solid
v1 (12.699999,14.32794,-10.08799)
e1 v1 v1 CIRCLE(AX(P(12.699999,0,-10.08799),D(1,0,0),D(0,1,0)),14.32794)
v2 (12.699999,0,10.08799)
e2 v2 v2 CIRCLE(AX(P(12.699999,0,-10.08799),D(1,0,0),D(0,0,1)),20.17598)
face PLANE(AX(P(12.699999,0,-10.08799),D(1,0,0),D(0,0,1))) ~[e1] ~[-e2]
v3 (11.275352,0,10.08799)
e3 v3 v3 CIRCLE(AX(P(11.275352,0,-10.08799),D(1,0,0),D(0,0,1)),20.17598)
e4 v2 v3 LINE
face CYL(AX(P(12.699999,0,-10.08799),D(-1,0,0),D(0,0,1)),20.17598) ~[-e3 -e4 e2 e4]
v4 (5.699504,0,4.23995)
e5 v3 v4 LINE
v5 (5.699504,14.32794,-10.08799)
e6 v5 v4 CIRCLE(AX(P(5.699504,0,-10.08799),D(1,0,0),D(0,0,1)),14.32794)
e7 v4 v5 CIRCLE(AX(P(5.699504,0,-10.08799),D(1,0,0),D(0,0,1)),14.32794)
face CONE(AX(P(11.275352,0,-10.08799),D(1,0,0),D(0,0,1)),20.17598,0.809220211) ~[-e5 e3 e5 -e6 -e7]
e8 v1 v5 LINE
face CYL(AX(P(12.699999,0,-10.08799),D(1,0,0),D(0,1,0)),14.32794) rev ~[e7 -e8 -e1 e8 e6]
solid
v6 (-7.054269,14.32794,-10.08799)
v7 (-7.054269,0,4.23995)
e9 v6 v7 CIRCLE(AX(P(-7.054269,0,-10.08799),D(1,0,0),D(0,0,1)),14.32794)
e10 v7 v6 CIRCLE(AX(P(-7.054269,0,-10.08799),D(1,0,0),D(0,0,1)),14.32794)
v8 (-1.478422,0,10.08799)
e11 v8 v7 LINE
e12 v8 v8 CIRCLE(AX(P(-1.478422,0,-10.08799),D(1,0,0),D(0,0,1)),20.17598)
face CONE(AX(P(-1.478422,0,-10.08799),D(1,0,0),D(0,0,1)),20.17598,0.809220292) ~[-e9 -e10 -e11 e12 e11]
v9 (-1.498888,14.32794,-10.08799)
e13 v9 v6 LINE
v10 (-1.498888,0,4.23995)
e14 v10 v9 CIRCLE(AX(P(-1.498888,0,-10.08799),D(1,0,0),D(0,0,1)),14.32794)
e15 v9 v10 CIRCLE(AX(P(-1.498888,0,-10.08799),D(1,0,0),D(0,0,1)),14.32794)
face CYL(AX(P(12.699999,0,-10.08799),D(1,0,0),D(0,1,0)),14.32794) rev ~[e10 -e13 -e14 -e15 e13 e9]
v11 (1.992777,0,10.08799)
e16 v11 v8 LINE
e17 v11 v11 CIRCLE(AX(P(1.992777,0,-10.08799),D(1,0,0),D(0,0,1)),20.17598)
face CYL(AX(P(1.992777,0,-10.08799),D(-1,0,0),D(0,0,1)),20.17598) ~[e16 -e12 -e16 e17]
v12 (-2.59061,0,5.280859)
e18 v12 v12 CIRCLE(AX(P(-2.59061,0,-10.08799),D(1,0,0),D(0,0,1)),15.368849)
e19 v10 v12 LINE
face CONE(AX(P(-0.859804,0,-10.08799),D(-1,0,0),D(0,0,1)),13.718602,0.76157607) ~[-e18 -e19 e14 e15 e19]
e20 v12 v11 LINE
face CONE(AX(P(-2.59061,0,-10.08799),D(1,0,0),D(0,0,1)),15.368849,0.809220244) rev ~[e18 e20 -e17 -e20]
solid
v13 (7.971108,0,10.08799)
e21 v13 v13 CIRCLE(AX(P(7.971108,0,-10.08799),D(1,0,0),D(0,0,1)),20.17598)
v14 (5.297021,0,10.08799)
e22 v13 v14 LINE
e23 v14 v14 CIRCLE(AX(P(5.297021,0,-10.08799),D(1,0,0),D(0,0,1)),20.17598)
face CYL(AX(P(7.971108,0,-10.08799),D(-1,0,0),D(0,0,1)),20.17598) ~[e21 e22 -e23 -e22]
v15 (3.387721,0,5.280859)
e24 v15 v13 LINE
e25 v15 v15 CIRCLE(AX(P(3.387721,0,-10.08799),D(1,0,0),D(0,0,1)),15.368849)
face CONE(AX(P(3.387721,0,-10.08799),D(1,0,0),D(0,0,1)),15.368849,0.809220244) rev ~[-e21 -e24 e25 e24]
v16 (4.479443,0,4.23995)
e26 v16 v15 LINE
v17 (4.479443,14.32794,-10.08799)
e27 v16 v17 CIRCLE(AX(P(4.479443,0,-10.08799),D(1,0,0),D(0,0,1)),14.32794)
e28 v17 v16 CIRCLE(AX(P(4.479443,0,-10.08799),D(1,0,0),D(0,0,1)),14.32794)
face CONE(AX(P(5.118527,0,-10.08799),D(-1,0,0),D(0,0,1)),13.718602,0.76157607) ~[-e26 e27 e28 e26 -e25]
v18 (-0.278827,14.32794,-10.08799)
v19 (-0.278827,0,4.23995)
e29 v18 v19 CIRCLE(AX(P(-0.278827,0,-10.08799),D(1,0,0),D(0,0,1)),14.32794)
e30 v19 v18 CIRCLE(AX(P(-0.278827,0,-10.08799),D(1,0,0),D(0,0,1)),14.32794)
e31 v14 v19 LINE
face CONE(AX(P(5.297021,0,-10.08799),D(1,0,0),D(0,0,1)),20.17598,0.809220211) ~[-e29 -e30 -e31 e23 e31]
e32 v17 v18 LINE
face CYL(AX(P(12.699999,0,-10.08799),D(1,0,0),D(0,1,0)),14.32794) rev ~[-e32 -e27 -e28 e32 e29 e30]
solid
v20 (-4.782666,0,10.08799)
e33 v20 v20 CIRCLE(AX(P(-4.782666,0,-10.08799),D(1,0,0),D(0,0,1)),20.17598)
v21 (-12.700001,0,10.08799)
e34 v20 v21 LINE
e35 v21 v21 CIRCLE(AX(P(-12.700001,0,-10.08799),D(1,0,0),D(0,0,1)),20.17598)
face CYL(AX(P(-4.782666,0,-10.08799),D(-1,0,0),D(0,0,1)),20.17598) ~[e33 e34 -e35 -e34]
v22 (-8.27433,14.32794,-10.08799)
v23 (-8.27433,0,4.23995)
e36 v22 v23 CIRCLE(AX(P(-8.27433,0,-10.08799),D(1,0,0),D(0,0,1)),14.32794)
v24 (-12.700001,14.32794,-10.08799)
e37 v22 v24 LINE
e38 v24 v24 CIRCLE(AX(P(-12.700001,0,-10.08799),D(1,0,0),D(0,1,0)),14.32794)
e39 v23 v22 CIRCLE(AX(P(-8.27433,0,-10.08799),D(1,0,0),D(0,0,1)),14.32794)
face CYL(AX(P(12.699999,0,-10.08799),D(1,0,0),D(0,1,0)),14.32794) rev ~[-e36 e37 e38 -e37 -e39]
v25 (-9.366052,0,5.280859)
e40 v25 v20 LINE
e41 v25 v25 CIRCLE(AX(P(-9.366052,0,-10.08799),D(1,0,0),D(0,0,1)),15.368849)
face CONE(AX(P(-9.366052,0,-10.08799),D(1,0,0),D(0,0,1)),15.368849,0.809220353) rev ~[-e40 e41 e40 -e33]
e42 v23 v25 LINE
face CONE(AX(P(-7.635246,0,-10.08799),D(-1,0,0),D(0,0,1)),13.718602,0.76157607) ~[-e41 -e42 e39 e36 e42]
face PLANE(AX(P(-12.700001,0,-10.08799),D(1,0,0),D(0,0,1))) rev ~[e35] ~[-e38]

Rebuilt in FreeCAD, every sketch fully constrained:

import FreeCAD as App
import Part
import Sketcher
from FreeCAD import Vector
Q = App.Units.Quantity

doc = App.newDocument("Part")
body = doc.addObject("PartDesign::Body", "Body")
body.AllowCompound = True

# Sketch on XZ plane
sketch1 = doc.addObject("Sketcher::SketchObject", "Sketch")
body.addObject(sketch1)
sketch1.AttachmentSupport = (doc.XZ_Plane, [""])
sketch1.MapMode = "FlatFace"
sketch1.addGeometry(Part.LineSegment(Vector(-4.782666, 10.08799, 0), Vector(-12.700001, 10.08799, 0)), False)
sketch1.addGeometry(Part.LineSegment(Vector(-12.700001, 10.08799, 0), Vector(-12.700001, -10.08799, 0)), False)
sketch1.addGeometry(Part.LineSegment(Vector(-12.700001, -10.08799, 0), Vector(-4.782666, -10.08799, 0)), False)
sketch1.addGeometry(Part.LineSegment(Vector(-4.782666, -10.08799, 0), Vector(-9.366052, -5.280859, 0)), False)
sketch1.addGeometry(Part.LineSegment(Vector(-9.366052, -5.280859, 0), Vector(-7.635246, -3.630612, 0)), False)
sketch1.addGeometry(Part.LineSegment(Vector(-7.635246, -3.630612, 0), Vector(-1.478422, -10.08799, 0)), False)
sketch1.addGeometry(Part.LineSegment(Vector(-1.478422, -10.08799, 0), Vector(1.992777, -10.08799, 0)), False)
sketch1.addGeometry(Part.LineSegment(Vector(1.992777, -10.08799, 0), Vector(-2.59061, -5.280859, 0)), False)
sketch1.addGeometry(Part.LineSegment(Vector(-2.59061, -5.280859, 0), Vector(-0.859804, -3.630612, 0)), False)
sketch1.addGeometry(Part.LineSegment(Vector(-0.859804, -3.630612, 0), Vector(5.297021, -10.08799, 0)), False)
sketch1.addGeometry(Part.LineSegment(Vector(5.297021, -10.08799, 0), Vector(7.971108, -10.08799, 0)), False)
sketch1.addGeometry(Part.LineSegment(Vector(7.971108, -10.08799, 0), Vector(3.387721, -5.280859, 0)), False)
sketch1.addGeometry(Part.LineSegment(Vector(3.387721, -5.280859, 0), Vector(5.118527, -3.630612, 0)), False)
sketch1.addGeometry(Part.LineSegment(Vector(5.118527, -3.630612, 0), Vector(11.275352, -10.08799, 0)), False)
sketch1.addGeometry(Part.LineSegment(Vector(11.275352, -10.08799, 0), Vector(12.699999, -10.08799, 0)), False)
sketch1.addGeometry(Part.LineSegment(Vector(12.699999, -10.08799, 0), Vector(12.699999, 10.08799, 0)), False)
sketch1.addGeometry(Part.LineSegment(Vector(12.699999, 10.08799, 0), Vector(11.275352, 10.08799, 0)), False)
sketch1.addGeometry(Part.LineSegment(Vector(11.275352, 10.08799, 0), Vector(5.118527, 3.630612, 0)), False)
sketch1.addGeometry(Part.LineSegment(Vector(5.118527, 3.630612, 0), Vector(3.387721, 5.280859, 0)), False)
sketch1.addGeometry(Part.LineSegment(Vector(3.387721, 5.280859, 0), Vector(7.971108, 10.08799, 0)), False)
sketch1.addGeometry(Part.LineSegment(Vector(7.971108, 10.08799, 0), Vector(5.297021, 10.08799, 0)), False)
sketch1.addGeometry(Part.LineSegment(Vector(5.297021, 10.08799, 0), Vector(-0.859804, 3.630612, 0)), False)
sketch1.addGeometry(Part.LineSegment(Vector(-0.859804, 3.630612, 0), Vector(-2.59061, 5.280859, 0)), False)
sketch1.addGeometry(Part.LineSegment(Vector(-2.59061, 5.280859, 0), Vector(1.992777, 10.08799, 0)), False)
sketch1.addGeometry(Part.LineSegment(Vector(1.992777, 10.08799, 0), Vector(-1.478422, 10.08799, 0)), False)
sketch1.addGeometry(Part.LineSegment(Vector(-1.478422, 10.08799, 0), Vector(-7.635246, 3.630612, 0)), False)
sketch1.addGeometry(Part.LineSegment(Vector(-7.635246, 3.630612, 0), Vector(-9.366052, 5.280859, 0)), False)
sketch1.addGeometry(Part.LineSegment(Vector(-9.366052, 5.280859, 0), Vector(-4.782666, 10.08799, 0)), False)
sketch1.addGeometry(Part.LineSegment(Vector(-12.700001, -10.08799, 0), Vector(12.699999, -10.08799, 0)), True)  # axis
sketch1.addConstraint(Sketcher.Constraint("Coincident", 0, 2, 1, 1))
sketch1.addConstraint(Sketcher.Constraint("Coincident", 1, 2, 2, 1))
sketch1.addConstraint(Sketcher.Constraint("Coincident", 2, 2, 3, 1))
sketch1.addConstraint(Sketcher.Constraint("Coincident", 3, 2, 4, 1))
sketch1.addConstraint(Sketcher.Constraint("Coincident", 4, 2, 5, 1))
sketch1.addConstraint(Sketcher.Constraint("Coincident", 5, 2, 6, 1))
sketch1.addConstraint(Sketcher.Constraint("Coincident", 6, 2, 7, 1))
sketch1.addConstraint(Sketcher.Constraint("Coincident", 7, 2, 8, 1))
sketch1.addConstraint(Sketcher.Constraint("Coincident", 8, 2, 9, 1))
sketch1.addConstraint(Sketcher.Constraint("Coincident", 9, 2, 10, 1))
sketch1.addConstraint(Sketcher.Constraint("Coincident", 10, 2, 11, 1))
sketch1.addConstraint(Sketcher.Constraint("Coincident", 11, 2, 12, 1))
sketch1.addConstraint(Sketcher.Constraint("Coincident", 12, 2, 13, 1))
sketch1.addConstraint(Sketcher.Constraint("Coincident", 13, 2, 14, 1))
sketch1.addConstraint(Sketcher.Constraint("Coincident", 14, 2, 15, 1))
sketch1.addConstraint(Sketcher.Constraint("Coincident", 15, 2, 16, 1))
sketch1.addConstraint(Sketcher.Constraint("Coincident", 16, 2, 17, 1))
sketch1.addConstraint(Sketcher.Constraint("Coincident", 17, 2, 18, 1))
sketch1.addConstraint(Sketcher.Constraint("Coincident", 18, 2, 19, 1))
sketch1.addConstraint(Sketcher.Constraint("Coincident", 19, 2, 20, 1))
sketch1.addConstraint(Sketcher.Constraint("Coincident", 20, 2, 21, 1))
sketch1.addConstraint(Sketcher.Constraint("Coincident", 21, 2, 22, 1))
sketch1.addConstraint(Sketcher.Constraint("Coincident", 22, 2, 23, 1))
sketch1.addConstraint(Sketcher.Constraint("Coincident", 23, 2, 24, 1))
sketch1.addConstraint(Sketcher.Constraint("Coincident", 24, 2, 25, 1))
sketch1.addConstraint(Sketcher.Constraint("Coincident", 25, 2, 26, 1))
sketch1.addConstraint(Sketcher.Constraint("Coincident", 26, 2, 27, 1))
sketch1.addConstraint(Sketcher.Constraint("Coincident", 27, 2, 0, 1))
sketch1.addConstraint(Sketcher.Constraint("Horizontal", 0))
sketch1.addConstraint(Sketcher.Constraint("Vertical", 1))
sketch1.addConstraint(Sketcher.Constraint("Horizontal", 2))
sketch1.addConstraint(Sketcher.Constraint("Horizontal", 6))
sketch1.addConstraint(Sketcher.Constraint("Horizontal", 10))
sketch1.addConstraint(Sketcher.Constraint("Horizontal", 14))
sketch1.addConstraint(Sketcher.Constraint("Vertical", 15))
sketch1.addConstraint(Sketcher.Constraint("Horizontal", 16))
sketch1.addConstraint(Sketcher.Constraint("Horizontal", 20))
sketch1.addConstraint(Sketcher.Constraint("Horizontal", 24))
sketch1.addConstraint(Sketcher.Constraint("Horizontal", 28))
sketch1.addConstraint(Sketcher.Constraint("Coincident", 28, 1, 1, 2))
sketch1.addConstraint(Sketcher.Constraint("Coincident", 28, 2, 14, 2))
sketch1.addConstraint(Sketcher.Constraint("Symmetric", 0, 2, 14, 2, -1, 1))
sketch1.addConstraint(Sketcher.Constraint("Symmetric", 13, 2, 16, 2, -1))
sketch1.addConstraint(Sketcher.Constraint("Symmetric", 12, 2, 17, 2, -1))
sketch1.addConstraint(Sketcher.Constraint("Symmetric", 11, 2, 18, 2, -1))
sketch1.addConstraint(Sketcher.Constraint("Symmetric", 10, 2, 19, 2, -1))
sketch1.addConstraint(Sketcher.Constraint("Symmetric", 8, 2, 21, 2, -1))
sketch1.addConstraint(Sketcher.Constraint("Symmetric", 7, 2, 22, 2, -1))
sketch1.addConstraint(Sketcher.Constraint("Symmetric", 6, 2, 23, 2, -1))
sketch1.addConstraint(Sketcher.Constraint("Symmetric", 4, 2, 25, 2, -1))
sketch1.addConstraint(Sketcher.Constraint("Symmetric", 3, 2, 26, 2, -1))
sketch1.addConstraint(Sketcher.Constraint("Perpendicular", 3, 4))
sketch1.addConstraint(Sketcher.Constraint("Perpendicular", 4, 5))
sketch1.addConstraint(Sketcher.Constraint("Parallel", 5, 7))
sketch1.addConstraint(Sketcher.Constraint("Perpendicular", 7, 8))
sketch1.addConstraint(Sketcher.Constraint("Perpendicular", 8, 9))
sketch1.addConstraint(Sketcher.Constraint("Parallel", 9, 11))
sketch1.addConstraint(Sketcher.Constraint("Perpendicular", 11, 12))
sketch1.addConstraint(Sketcher.Constraint("Perpendicular", 12, 13))
sketch1.addConstraint(Sketcher.Constraint("Parallel", 19, 21))
sketch1.addConstraint(Sketcher.Constraint("Parallel", 23, 25))
sketch1.addConstraint(Sketcher.Constraint("Perpendicular", 26, 27))
sketch1.addConstraint(Sketcher.Constraint("Horizontal", 2, 2, 5, 2))
sketch1.addConstraint(Sketcher.Constraint("Horizontal", 3, 2, 7, 2))
sketch1.addConstraint(Sketcher.Constraint("Horizontal", 4, 2, 8, 2))
sketch1.addConstraint(Sketcher.Constraint("Horizontal", 6, 2, 9, 2))
sketch1.addConstraint(Sketcher.Constraint("Horizontal", 7, 2, 11, 2))
sketch1.addConstraint(Sketcher.Constraint("Horizontal", 8, 2, 12, 2))
sketch1.addConstraint(Sketcher.Constraint("DistanceX", 28, 1, 28, 2, Q("1 in")))
sketch1.addConstraint(Sketcher.Constraint("DistanceX", 6, 1, 6, 2, 3.471199))
sketch1.addConstraint(Sketcher.Constraint("DistanceX", 1, 2, 4, 2, Q("0.1993998 in")))
sketch1.addConstraint(Sketcher.Constraint("DistanceY", 1, 2, 1, 1, 20.17598))
sketch1.addConstraint(Sketcher.Constraint("DistanceX", 11, 2, 9, 2, 1.9093))
sketch1.addConstraint(Sketcher.Constraint("Distance", 5, 8.922119))
sketch1.addConstraint(Sketcher.Constraint("DistanceX", 0, 2, 0, 1, 7.917335))
sketch1.addConstraint(Sketcher.Constraint("DistanceX", 14, 1, 14, 2, 1.424647))
revolution = doc.addObject("PartDesign::Revolution", "Revolution")
body.addObject(revolution)
revolution.Profile = sketch1
revolution.ReferenceAxis = (sketch1, ["Axis0"])
revolution.Angle = 360

# Sketch on YZ plane
sketch2 = doc.addObject("Sketcher::SketchObject", "Sketch001")
body.addObject(sketch2)
sketch2.AttachmentSupport = (doc.YZ_Plane, [""])
sketch2.MapMode = "FlatFace"
sketch2.AttachmentOffset = App.Placement(Vector(0, 0, 0.5 * 25.4), App.Rotation())
sketch2.addGeometry(Part.Circle(Vector(0, -10.08799, 0), Vector(0, 0, 1), 14.32794), False)
sketch2.addConstraint(Sketcher.Constraint("PointOnObject", 0, 3, -2))
sketch2.addConstraint(Sketcher.Constraint("Diameter", 0, 28.65588))
sketch2.addConstraint(Sketcher.Constraint("DistanceY", 0, 3, -1, 1, 10.08799))
pocket1 = doc.addObject("PartDesign::Pocket", "Pocket")
body.addObject(pocket1)
pocket1.Profile = sketch2
pocket1.Length = Q("10 in")

doc.recompute()
